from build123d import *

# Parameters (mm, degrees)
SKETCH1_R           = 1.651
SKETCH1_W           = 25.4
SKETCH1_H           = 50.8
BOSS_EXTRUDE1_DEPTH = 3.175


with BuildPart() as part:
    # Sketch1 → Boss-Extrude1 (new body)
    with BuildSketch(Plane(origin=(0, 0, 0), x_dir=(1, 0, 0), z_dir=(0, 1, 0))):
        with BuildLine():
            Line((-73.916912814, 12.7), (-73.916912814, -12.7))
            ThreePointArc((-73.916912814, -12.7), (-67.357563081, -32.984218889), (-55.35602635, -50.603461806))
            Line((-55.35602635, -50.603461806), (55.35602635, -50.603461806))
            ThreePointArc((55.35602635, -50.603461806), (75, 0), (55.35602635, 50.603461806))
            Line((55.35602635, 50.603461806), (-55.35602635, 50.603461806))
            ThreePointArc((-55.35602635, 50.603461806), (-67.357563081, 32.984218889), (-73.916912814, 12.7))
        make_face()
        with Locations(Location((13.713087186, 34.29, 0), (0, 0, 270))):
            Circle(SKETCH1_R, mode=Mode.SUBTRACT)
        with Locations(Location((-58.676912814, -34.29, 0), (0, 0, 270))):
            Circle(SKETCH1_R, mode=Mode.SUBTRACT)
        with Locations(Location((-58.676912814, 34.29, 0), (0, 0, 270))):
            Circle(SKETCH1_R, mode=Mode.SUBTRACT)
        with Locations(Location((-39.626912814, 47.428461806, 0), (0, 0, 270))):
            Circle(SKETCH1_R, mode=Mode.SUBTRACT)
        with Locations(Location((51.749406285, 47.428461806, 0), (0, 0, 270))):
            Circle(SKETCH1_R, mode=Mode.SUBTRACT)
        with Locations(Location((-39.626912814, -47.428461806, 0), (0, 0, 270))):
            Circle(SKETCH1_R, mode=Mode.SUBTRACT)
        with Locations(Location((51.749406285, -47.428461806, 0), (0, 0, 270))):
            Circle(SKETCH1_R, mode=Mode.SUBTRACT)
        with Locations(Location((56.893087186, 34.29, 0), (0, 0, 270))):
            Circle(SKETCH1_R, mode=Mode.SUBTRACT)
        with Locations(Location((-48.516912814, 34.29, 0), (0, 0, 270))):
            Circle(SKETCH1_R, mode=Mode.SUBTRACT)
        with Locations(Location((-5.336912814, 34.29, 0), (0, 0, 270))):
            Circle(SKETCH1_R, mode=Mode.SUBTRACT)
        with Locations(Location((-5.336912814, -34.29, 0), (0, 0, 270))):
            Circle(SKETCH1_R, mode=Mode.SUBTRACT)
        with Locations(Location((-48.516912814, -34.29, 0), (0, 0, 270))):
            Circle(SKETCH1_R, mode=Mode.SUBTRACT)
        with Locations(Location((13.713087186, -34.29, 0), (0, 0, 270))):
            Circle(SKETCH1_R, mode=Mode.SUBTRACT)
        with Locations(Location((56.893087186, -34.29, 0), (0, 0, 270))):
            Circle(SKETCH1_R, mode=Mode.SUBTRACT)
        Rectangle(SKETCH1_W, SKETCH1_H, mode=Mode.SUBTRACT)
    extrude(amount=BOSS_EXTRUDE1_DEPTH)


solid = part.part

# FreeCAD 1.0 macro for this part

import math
import FreeCAD as App
import Part
import Sketcher
from FreeCAD import Vector
Q = App.Units.Quantity

doc = App.newDocument("Part")
body = doc.addObject("PartDesign::Body", "Body")

# Sketch on XZ plane
sketch1 = doc.addObject("Sketcher::SketchObject", "Sketch")
body.addObject(sketch1)
sketch1.AttachmentSupport = (doc.XZ_Plane, [""])
sketch1.MapMode = "FlatFace"
sketch1.addGeometry(Part.LineSegment(Vector(-73.916913, -12.7, 0), Vector(-73.916913, 12.7, 0)), False)
sketch1.addGeometry(Part.ArcOfCircle(Part.Circle(Vector(0, 0, 0), Vector(0, 0, 1), 75), math.radians(137.568147), math.radians(170.25094)), False)
sketch1.addGeometry(Part.LineSegment(Vector(-55.356026, 50.603462, 0), Vector(55.356026, 50.603462, 0)), False)
sketch1.addGeometry(Part.ArcOfCircle(Part.Circle(Vector(0, 0, 0), Vector(0, 0, 1), 75), math.radians(-42.431853), math.radians(42.431853)), False)
sketch1.addGeometry(Part.LineSegment(Vector(55.356026, -50.603462, 0), Vector(-55.356026, -50.603462, 0)), False)
sketch1.addGeometry(Part.ArcOfCircle(Part.Circle(Vector(0, 0, 0), Vector(0, 0, 1), 75), math.radians(-170.25094), math.radians(-137.568147)), False)
sketch1.addGeometry(Part.Circle(Vector(-39.626913, 47.428462, 0), Vector(0, 0, 1), 1.651), False)
sketch1.addGeometry(Part.Circle(Vector(-58.676913, 34.29, 0), Vector(0, 0, 1), 1.651), False)
sketch1.addGeometry(Part.Circle(Vector(-48.516913, 34.29, 0), Vector(0, 0, 1), 1.651), False)
sketch1.addGeometry(Part.Circle(Vector(-5.336913, 34.29, 0), Vector(0, 0, 1), 1.651), False)
sketch1.addGeometry(Part.Circle(Vector(13.713087, 34.29, 0), Vector(0, 0, 1), 1.651), False)
sketch1.addGeometry(Part.Circle(Vector(51.749406, 47.428462, 0), Vector(0, 0, 1), 1.651), False)
sketch1.addGeometry(Part.Circle(Vector(56.893087, 34.29, 0), Vector(0, 0, 1), 1.651), False)
sketch1.addGeometry(Part.Circle(Vector(-58.676913, -34.29, 0), Vector(0, 0, 1), 1.651), False)
sketch1.addGeometry(Part.Circle(Vector(-48.516913, -34.29, 0), Vector(0, 0, 1), 1.651), False)
sketch1.addGeometry(Part.Circle(Vector(-39.626913, -47.428462, 0), Vector(0, 0, 1), 1.651), False)
sketch1.addGeometry(Part.Circle(Vector(-5.336913, -34.29, 0), Vector(0, 0, 1), 1.651), False)
sketch1.addGeometry(Part.LineSegment(Vector(12.7, 25.4, 0), Vector(-12.7, 25.4, 0)), False)
sketch1.addGeometry(Part.LineSegment(Vector(-12.7, 25.4, 0), Vector(-12.7, -25.4, 0)), False)
sketch1.addGeometry(Part.LineSegment(Vector(-12.7, -25.4, 0), Vector(12.7, -25.4, 0)), False)
sketch1.addGeometry(Part.LineSegment(Vector(12.7, -25.4, 0), Vector(12.7, 25.4, 0)), False)
sketch1.addGeometry(Part.Circle(Vector(13.713087, -34.29, 0), Vector(0, 0, 1), 1.651), False)
sketch1.addGeometry(Part.Circle(Vector(56.893087, -34.29, 0), Vector(0, 0, 1), 1.651), False)
sketch1.addGeometry(Part.Circle(Vector(51.749406, -47.428462, 0), Vector(0, 0, 1), 1.651), False)
sketch1.addConstraint(Sketcher.Constraint("Coincident", 0, 2, 1, 2))
sketch1.addConstraint(Sketcher.Constraint("Coincident", 1, 1, 2, 1))
sketch1.addConstraint(Sketcher.Constraint("Coincident", 2, 2, 3, 2))
sketch1.addConstraint(Sketcher.Constraint("Coincident", 3, 1, 4, 1))
sketch1.addConstraint(Sketcher.Constraint("Coincident", 4, 2, 5, 2))
sketch1.addConstraint(Sketcher.Constraint("Coincident", 5, 1, 0, 1))
sketch1.addConstraint(Sketcher.Constraint("Coincident", 17, 2, 18, 1))
sketch1.addConstraint(Sketcher.Constraint("Coincident", 18, 2, 19, 1))
sketch1.addConstraint(Sketcher.Constraint("Coincident", 19, 2, 20, 1))
sketch1.addConstraint(Sketcher.Constraint("Coincident", 20, 2, 17, 1))
sketch1.addConstraint(Sketcher.Constraint("Vertical", 0))
sketch1.addConstraint(Sketcher.Constraint("Horizontal", 2))
sketch1.addConstraint(Sketcher.Constraint("Horizontal", 4))
sketch1.addConstraint(Sketcher.Constraint("Horizontal", 17))
sketch1.addConstraint(Sketcher.Constraint("Vertical", 18))
sketch1.addConstraint(Sketcher.Constraint("Horizontal", 19))
sketch1.addConstraint(Sketcher.Constraint("Vertical", 20))
sketch1.addConstraint(Sketcher.Constraint("Coincident", 1, 3, -1, 1))
sketch1.addConstraint(Sketcher.Constraint("Coincident", 3, 3, -1, 1))
sketch1.addConstraint(Sketcher.Constraint("Coincident", 5, 3, -1, 1))
sketch1.addConstraint(Sketcher.Constraint("Equal", 1, 3))
sketch1.addConstraint(Sketcher.Constraint("Equal", 3, 5))
sketch1.addConstraint(Sketcher.Constraint("Equal", 6, 7))
sketch1.addConstraint(Sketcher.Constraint("Equal", 7, 8))
sketch1.addConstraint(Sketcher.Constraint("Equal", 8, 9))
sketch1.addConstraint(Sketcher.Constraint("Equal", 9, 10))
sketch1.addConstraint(Sketcher.Constraint("Equal", 10, 11))
sketch1.addConstraint(Sketcher.Constraint("Equal", 11, 12))
sketch1.addConstraint(Sketcher.Constraint("Equal", 12, 13))
sketch1.addConstraint(Sketcher.Constraint("Equal", 13, 14))
sketch1.addConstraint(Sketcher.Constraint("Equal", 14, 15))
sketch1.addConstraint(Sketcher.Constraint("Equal", 15, 16))
sketch1.addConstraint(Sketcher.Constraint("Equal", 16, 21))
sketch1.addConstraint(Sketcher.Constraint("Equal", 21, 22))
sketch1.addConstraint(Sketcher.Constraint("Equal", 22, 23))
sketch1.addConstraint(Sketcher.Constraint("Symmetric", 17, 2, 19, 2, -1, 1))
sketch1.addConstraint(Sketcher.Constraint("Symmetric", 7, 3, 13, 3, -1))
sketch1.addConstraint(Sketcher.Constraint("Symmetric", 8, 3, 14, 3, -1))
sketch1.addConstraint(Sketcher.Constraint("Symmetric", 6, 3, 15, 3, -1))
sketch1.addConstraint(Sketcher.Constraint("Symmetric", 9, 3, 16, 3, -1))
sketch1.addConstraint(Sketcher.Constraint("Symmetric", 10, 3, 21, 3, -1))
sketch1.addConstraint(Sketcher.Constraint("Symmetric", 12, 3, 22, 3, -1))
sketch1.addConstraint(Sketcher.Constraint("Symmetric", 11, 3, 23, 3, -1))
sketch1.addConstraint(Sketcher.Constraint("Horizontal", 7, 3, 8, 3))
sketch1.addConstraint(Sketcher.Constraint("Horizontal", 8, 3, 9, 3))
sketch1.addConstraint(Sketcher.Constraint("Horizontal", 9, 3, 10, 3))
sketch1.addConstraint(Sketcher.Constraint("Horizontal", 6, 3, 11, 3))
sketch1.addConstraint(Sketcher.Constraint("Horizontal", 10, 3, 12, 3))
sketch1.addConstraint(Sketcher.Constraint("Vertical", 2, 2, 3, 1))
sketch1.addConstraint(Sketcher.Constraint("Equal", 19, 0))
sketch1.addConstraint(Sketcher.Constraint("Diameter", 6, Q("0.13 in")))
sketch1.addConstraint(Sketcher.Constraint("DistanceX", 17, 2, 17, 1, Q("1 in")))
sketch1.addConstraint(Sketcher.Constraint("DistanceY", 18, 2, 18, 1, Q("2 in")))
sketch1.addConstraint(Sketcher.Constraint("DistanceX", 0, 2, 8, 3, Q("1 in")))
sketch1.addConstraint(Sketcher.Constraint("DistanceX", 7, 3, 8, 3, Q("0.4 in")))
sketch1.addConstraint(Sketcher.Constraint("DistanceX", 8, 3, 9, 3, Q("1.7 in")))
sketch1.addConstraint(Sketcher.Constraint("DistanceX", 6, 3, 10, 3, Q("2.1 in")))
sketch1.addConstraint(Sketcher.Constraint("DistanceX", 10, 3, 12, 3, Q("1.7 in")))
sketch1.addConstraint(Sketcher.Constraint("DistanceY", 13, 3, 7, 3, Q("2.7 in")))
sketch1.addConstraint(Sketcher.Constraint("Radius", 1, 75.0))
sketch1.addConstraint(Sketcher.Constraint("DistanceX", 7, 3, 6, 3, Q("0.75 in")))
sketch1.addConstraint(Sketcher.Constraint("DistanceY", 6, 3, 1, 1, Q("0.125 in")))
sketch1.addConstraint(Sketcher.Constraint("DistanceX", 2, 1, 2, 2, 110.712053))
sketch1.addConstraint(Sketcher.Constraint("DistanceX", 10, 3, 11, 3, 38.036319))
pad1 = doc.addObject("PartDesign::Pad", "Pad")
body.addObject(pad1)
pad1.Profile = sketch1
pad1.Length = Q("0.125 in")
pad1.Reversed = True

doc.recompute()
